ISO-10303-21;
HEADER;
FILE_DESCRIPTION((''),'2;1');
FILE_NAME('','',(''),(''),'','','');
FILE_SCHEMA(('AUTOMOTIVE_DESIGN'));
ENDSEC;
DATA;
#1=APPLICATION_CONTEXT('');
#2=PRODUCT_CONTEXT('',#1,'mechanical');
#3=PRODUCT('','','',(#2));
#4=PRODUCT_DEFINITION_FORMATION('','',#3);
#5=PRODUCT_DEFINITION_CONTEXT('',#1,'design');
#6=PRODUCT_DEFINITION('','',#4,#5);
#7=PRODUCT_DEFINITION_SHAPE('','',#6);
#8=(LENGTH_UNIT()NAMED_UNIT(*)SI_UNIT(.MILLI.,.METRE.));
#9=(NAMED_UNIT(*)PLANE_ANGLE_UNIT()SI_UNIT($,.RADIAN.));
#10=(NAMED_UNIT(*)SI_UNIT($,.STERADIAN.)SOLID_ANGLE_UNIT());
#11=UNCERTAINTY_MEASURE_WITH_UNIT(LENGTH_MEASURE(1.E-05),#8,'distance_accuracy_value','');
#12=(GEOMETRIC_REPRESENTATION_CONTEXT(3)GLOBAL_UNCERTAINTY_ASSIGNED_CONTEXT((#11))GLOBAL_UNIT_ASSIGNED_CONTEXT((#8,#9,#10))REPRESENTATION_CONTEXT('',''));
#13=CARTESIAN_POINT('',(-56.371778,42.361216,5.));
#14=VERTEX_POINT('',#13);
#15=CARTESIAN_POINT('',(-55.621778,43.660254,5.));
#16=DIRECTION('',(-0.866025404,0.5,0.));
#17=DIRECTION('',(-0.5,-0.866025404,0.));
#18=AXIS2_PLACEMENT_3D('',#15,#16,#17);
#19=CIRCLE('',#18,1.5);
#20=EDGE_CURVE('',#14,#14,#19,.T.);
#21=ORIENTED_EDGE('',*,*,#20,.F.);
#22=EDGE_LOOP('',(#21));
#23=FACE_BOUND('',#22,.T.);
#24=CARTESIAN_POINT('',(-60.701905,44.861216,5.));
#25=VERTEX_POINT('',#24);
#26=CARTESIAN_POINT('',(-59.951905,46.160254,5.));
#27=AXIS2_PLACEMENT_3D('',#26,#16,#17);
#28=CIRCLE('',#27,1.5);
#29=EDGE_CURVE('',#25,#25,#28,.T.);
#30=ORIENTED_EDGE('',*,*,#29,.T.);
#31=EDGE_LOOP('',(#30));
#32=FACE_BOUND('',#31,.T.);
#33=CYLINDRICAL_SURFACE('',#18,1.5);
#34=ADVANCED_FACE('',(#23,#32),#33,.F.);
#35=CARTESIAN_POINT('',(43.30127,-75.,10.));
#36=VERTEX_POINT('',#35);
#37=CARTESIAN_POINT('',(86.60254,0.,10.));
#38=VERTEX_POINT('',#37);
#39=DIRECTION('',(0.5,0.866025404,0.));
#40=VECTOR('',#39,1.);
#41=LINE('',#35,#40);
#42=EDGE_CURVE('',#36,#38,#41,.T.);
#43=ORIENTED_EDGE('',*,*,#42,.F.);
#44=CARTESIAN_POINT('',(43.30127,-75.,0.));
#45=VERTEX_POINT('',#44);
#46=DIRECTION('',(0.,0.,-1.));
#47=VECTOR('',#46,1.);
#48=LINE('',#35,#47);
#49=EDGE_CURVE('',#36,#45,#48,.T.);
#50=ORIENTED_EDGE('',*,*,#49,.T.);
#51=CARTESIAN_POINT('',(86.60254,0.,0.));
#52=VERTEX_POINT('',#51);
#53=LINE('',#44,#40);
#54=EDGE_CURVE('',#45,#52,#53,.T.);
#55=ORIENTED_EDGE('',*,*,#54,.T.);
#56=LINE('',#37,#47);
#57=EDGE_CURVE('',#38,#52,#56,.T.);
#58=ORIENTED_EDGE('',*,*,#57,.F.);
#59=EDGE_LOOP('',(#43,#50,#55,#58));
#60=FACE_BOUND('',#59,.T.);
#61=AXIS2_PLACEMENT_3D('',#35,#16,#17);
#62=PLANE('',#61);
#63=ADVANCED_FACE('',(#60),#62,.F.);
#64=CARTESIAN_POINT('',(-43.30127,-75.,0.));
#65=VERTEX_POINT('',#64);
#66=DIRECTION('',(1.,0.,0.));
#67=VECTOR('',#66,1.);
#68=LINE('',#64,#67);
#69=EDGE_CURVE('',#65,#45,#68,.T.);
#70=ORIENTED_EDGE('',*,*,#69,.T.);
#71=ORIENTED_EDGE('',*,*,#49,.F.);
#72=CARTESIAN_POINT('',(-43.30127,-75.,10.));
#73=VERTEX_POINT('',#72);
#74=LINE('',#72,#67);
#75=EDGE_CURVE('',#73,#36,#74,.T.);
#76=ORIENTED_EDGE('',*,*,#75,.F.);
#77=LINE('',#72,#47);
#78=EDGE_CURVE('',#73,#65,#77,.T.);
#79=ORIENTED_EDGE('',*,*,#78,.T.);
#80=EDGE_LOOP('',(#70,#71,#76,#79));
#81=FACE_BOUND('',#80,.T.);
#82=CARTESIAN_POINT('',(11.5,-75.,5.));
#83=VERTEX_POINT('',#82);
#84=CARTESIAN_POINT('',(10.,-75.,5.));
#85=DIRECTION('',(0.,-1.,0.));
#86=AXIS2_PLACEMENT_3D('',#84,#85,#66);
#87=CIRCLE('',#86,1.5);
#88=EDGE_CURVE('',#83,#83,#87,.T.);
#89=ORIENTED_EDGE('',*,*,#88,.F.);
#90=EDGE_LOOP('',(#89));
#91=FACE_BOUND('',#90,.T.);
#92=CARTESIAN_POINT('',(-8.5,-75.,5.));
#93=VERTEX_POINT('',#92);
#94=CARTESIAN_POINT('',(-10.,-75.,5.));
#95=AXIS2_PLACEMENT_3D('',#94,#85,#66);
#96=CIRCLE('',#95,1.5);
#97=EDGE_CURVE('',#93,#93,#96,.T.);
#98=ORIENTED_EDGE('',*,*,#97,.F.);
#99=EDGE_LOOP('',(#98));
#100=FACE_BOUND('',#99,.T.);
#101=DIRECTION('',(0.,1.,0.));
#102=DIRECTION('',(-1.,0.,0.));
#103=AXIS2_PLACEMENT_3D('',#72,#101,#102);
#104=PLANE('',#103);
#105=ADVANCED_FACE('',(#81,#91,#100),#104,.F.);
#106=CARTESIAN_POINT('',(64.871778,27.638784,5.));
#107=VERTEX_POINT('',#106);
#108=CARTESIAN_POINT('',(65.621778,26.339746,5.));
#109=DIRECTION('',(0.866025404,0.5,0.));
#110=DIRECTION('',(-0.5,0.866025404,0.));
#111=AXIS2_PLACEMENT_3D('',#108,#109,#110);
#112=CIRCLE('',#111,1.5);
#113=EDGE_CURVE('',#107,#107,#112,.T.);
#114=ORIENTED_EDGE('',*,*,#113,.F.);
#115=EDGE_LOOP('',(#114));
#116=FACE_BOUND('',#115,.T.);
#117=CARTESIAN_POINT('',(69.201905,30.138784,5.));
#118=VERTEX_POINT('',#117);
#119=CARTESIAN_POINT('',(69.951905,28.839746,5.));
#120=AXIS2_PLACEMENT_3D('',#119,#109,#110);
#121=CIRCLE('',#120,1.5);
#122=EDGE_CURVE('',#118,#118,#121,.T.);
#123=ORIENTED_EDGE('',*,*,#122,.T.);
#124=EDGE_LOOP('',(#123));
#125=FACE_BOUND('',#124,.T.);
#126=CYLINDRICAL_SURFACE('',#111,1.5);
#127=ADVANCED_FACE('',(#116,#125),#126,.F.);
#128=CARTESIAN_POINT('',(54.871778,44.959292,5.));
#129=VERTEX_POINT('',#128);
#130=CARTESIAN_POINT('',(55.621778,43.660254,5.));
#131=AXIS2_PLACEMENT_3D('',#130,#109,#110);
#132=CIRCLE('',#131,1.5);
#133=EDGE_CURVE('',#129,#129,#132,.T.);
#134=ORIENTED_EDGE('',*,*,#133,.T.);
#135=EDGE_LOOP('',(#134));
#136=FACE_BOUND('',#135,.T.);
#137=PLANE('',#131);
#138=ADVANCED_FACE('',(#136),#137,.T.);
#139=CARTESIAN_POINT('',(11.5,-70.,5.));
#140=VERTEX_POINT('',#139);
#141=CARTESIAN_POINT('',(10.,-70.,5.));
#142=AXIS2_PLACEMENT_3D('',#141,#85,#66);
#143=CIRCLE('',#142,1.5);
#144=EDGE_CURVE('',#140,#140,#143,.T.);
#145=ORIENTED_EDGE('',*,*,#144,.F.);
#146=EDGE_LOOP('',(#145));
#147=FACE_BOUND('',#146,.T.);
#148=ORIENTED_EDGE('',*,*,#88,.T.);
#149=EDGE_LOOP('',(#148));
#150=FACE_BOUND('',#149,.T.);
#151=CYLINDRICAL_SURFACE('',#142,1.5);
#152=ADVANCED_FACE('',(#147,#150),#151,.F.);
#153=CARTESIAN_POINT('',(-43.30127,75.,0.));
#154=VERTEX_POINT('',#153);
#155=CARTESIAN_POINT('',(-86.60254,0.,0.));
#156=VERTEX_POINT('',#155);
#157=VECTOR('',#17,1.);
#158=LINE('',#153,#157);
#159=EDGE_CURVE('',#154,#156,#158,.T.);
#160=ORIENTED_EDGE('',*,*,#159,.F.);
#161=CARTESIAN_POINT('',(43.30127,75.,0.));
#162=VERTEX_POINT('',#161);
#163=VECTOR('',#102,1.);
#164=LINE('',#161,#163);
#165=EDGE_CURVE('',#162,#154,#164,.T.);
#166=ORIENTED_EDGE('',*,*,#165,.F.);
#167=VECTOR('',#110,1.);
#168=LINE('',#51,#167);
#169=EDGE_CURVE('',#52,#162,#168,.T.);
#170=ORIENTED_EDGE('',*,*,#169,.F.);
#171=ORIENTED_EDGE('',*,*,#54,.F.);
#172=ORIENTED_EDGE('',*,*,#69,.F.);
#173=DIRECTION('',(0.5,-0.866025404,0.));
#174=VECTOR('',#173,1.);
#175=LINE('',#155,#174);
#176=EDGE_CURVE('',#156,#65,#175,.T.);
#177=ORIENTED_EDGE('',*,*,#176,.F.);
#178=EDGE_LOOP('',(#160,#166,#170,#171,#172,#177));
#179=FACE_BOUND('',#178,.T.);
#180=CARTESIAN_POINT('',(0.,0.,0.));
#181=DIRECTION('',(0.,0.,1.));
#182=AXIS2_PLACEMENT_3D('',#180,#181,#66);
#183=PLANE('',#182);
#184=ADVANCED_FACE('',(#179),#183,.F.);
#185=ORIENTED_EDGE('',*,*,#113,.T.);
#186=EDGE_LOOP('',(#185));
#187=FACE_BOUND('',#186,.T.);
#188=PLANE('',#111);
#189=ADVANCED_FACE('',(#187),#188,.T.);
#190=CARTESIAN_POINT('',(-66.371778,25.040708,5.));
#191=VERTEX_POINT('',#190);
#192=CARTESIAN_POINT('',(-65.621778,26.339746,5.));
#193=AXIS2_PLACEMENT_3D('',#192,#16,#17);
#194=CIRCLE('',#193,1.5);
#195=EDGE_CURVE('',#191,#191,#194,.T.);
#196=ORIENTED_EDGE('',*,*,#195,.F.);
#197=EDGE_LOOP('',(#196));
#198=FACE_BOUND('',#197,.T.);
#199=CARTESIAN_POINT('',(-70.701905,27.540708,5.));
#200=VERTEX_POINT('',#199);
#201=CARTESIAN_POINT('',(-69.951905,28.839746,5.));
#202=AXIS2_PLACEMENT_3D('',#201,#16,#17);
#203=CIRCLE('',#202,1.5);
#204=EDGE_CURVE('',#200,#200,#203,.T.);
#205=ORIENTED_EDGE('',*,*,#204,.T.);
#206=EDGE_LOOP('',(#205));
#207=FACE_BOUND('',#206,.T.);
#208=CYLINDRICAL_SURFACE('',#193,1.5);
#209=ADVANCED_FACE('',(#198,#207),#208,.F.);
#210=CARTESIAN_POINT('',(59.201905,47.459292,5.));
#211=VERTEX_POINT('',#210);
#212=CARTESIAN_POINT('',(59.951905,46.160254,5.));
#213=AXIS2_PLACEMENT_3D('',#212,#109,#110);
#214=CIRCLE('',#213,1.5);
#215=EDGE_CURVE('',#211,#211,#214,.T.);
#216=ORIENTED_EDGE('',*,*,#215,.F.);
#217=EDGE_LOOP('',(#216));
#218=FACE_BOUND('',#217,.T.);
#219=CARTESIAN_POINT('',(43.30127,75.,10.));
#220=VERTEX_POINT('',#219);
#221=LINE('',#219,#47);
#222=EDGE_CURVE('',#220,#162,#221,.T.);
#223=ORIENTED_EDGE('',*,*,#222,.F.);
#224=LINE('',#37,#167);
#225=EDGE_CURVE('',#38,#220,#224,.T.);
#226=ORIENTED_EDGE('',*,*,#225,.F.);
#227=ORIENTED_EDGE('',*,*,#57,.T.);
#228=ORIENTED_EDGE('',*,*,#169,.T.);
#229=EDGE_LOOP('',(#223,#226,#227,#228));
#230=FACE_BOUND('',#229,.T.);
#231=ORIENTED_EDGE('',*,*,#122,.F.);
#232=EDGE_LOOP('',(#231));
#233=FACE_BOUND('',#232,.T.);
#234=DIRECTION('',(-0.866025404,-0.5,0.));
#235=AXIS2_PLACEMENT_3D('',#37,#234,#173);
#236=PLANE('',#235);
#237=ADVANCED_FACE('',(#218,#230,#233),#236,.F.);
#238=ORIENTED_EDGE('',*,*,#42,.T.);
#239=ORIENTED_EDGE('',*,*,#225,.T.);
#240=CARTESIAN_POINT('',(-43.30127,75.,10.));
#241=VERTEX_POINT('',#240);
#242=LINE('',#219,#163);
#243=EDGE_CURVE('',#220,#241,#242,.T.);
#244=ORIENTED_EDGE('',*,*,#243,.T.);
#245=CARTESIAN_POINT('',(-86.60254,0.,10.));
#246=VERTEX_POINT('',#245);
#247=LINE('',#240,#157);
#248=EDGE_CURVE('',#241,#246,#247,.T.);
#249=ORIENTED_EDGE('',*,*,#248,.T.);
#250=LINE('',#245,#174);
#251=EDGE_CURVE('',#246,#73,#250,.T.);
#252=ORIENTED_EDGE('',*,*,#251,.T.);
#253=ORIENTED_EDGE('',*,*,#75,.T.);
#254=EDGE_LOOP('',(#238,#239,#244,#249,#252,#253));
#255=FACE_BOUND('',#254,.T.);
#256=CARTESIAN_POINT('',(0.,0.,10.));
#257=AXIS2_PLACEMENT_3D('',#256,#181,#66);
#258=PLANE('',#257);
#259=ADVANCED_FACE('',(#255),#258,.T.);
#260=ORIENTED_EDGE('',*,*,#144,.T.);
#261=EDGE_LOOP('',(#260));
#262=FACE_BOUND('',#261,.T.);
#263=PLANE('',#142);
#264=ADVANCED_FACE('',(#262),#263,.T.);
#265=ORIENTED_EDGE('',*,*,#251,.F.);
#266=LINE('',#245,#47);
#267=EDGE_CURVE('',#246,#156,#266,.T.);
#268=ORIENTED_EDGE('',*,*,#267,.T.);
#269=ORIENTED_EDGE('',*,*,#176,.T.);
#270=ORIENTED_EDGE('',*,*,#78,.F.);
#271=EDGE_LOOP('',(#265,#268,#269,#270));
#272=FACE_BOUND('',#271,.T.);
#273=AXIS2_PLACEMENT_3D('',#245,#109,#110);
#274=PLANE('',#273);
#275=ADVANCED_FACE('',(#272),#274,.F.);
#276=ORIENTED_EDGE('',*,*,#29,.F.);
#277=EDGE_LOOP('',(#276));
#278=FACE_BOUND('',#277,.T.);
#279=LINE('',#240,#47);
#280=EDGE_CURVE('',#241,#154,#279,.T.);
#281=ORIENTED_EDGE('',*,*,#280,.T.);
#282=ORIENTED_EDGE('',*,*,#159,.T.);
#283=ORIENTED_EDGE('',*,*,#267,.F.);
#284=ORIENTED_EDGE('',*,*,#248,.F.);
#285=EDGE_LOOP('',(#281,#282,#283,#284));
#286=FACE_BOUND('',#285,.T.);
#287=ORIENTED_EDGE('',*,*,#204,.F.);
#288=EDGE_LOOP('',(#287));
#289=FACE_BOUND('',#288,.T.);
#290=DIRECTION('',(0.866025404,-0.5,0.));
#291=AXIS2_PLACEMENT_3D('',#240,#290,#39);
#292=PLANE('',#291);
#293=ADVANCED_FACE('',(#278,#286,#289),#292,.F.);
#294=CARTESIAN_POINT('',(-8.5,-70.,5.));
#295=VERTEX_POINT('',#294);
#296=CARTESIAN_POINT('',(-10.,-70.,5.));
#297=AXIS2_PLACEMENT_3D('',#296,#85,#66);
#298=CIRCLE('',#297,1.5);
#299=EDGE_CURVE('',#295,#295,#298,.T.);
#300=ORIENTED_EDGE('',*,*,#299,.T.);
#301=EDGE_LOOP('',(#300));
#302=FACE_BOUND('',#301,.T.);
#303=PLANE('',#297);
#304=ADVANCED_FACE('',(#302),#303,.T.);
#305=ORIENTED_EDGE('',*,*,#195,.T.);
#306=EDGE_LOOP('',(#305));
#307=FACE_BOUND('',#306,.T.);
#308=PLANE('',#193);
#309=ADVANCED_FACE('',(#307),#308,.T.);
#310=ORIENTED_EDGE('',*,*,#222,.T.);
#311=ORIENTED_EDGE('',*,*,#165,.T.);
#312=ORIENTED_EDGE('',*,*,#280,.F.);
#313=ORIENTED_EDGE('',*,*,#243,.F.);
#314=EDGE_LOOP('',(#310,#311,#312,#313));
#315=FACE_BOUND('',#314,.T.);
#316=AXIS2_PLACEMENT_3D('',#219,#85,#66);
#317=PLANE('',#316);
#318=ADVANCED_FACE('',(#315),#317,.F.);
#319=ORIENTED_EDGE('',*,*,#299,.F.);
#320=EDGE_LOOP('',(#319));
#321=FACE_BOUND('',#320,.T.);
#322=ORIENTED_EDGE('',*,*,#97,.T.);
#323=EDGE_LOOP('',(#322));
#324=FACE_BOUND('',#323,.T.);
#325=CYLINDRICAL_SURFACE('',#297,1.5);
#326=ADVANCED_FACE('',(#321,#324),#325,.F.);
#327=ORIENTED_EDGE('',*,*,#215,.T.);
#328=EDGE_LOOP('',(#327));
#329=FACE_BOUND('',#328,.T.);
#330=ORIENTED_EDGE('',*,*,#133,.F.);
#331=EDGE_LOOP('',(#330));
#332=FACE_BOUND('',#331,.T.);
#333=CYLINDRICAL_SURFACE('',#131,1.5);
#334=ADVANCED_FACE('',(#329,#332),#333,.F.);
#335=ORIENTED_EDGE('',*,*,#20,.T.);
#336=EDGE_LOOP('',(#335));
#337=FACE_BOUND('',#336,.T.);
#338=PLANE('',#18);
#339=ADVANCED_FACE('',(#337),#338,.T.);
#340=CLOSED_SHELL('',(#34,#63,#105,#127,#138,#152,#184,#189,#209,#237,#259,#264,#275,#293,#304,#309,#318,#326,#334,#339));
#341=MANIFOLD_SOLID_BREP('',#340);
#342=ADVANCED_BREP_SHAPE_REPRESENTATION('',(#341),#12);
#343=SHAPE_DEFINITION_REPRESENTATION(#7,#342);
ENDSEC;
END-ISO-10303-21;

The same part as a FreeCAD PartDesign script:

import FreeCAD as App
import Part
import Sketcher
from FreeCAD import Vector
Q = App.Units.Quantity


def add_polygon(sketch, points):
    """Adds a closed chain of lines whose ends are joined by coincident constraints."""
    first, n = sketch.GeometryCount, len(points)
    for a, b in zip(points, points[1:] + points[:1]):
        sketch.addGeometry(Part.LineSegment(App.Vector(*a, 0), App.Vector(*b, 0)), False)
    for i in range(n):
        sketch.addConstraint(Sketcher.Constraint("Coincident", first + i, 2, first + (i + 1) % n, 1))

doc = App.newDocument("Part")
body = doc.addObject("PartDesign::Body", "Body")

sketch1 = body.newObject("Sketcher::SketchObject", "Sketch")
sketch1.AttachmentSupport = (doc.getObject("XY_Plane"), [""])
sketch1.MapMode = "FlatFace"
add_polygon(sketch1, [(87, 0), (43, 75), (-43, 75), (-87, 0), (-43, -75), (43, -75)])
sketch1.addConstraint(Sketcher.Constraint("Horizontal", 1))
sketch1.addConstraint(Sketcher.Constraint("Horizontal", 4))
sketch1.addConstraint(Sketcher.Constraint("Symmetric", 0, 2, 3, 2, -1, 1))
sketch1.addConstraint(Sketcher.Constraint("Symmetric", 2, 2, 5, 2, -1, 1))
sketch1.addConstraint(Sketcher.Constraint("PointOnObject", 2, 2, -1))
sketch1.addConstraint(Sketcher.Constraint("Parallel", 2, 5))
sketch1.addConstraint(Sketcher.Constraint("Vertical", 1, 2, 3, 2))
sketch1.addConstraint(Sketcher.Constraint("Angle", 0, Q("120 deg")))
sketch1.addConstraint(Sketcher.Constraint("DistanceY", -1, 1, 0, 2, Q("75 mm")))
sketch1.addConstraint(Sketcher.Constraint("DistanceX", 1, 2, 1, 1, Q("86.60254 mm")))
pad1 = body.newObject("PartDesign::Pad", "Pad")
pad1.Profile = sketch1
pad1.Length = 10

sketch2 = body.newObject("Sketcher::SketchObject", "Sketch001")
sketch2.AttachmentSupport = (doc.getObject("XZ_Plane"), [""])
sketch2.MapMode = "FlatFace"
sketch2.AttachmentOffset = App.Placement(Vector(0, 0, 75), App.Rotation())
sketch2.addGeometry(Part.Circle(Vector(-10, 5, 0), Vector(0, 0, 1), 1.5), False)
sketch2.addGeometry(Part.Circle(Vector(10, 5, 0), Vector(0, 0, 1), 1.5), False)
sketch2.addConstraint(Sketcher.Constraint("Equal", 0, 1))
sketch2.addConstraint(Sketcher.Constraint("Symmetric", 0, 3, 1, 3, -2))
sketch2.addConstraint(Sketcher.Constraint("Diameter", 0, Q("3 mm")))
sketch2.addConstraint(Sketcher.Constraint("DistanceX", 0, 3, -1, 1, Q("10 mm")))
sketch2.addConstraint(Sketcher.Constraint("DistanceY", -1, 1, 0, 3, Q("5 mm")))
pocket1 = body.newObject("PartDesign::Pocket", "Pocket")
pocket1.Profile = sketch2
pocket1.Length = 5
doc.recompute()

polarpattern = body.newObject("PartDesign::PolarPattern", "PolarPattern")
polarpattern.Originals = [pocket1]
polarpattern.Axis = (doc.getObject("Z_Axis"), [""])
polarpattern.Angle = 360
polarpattern.Occurrences = 3
body.Tip = polarpattern

doc.recompute()
